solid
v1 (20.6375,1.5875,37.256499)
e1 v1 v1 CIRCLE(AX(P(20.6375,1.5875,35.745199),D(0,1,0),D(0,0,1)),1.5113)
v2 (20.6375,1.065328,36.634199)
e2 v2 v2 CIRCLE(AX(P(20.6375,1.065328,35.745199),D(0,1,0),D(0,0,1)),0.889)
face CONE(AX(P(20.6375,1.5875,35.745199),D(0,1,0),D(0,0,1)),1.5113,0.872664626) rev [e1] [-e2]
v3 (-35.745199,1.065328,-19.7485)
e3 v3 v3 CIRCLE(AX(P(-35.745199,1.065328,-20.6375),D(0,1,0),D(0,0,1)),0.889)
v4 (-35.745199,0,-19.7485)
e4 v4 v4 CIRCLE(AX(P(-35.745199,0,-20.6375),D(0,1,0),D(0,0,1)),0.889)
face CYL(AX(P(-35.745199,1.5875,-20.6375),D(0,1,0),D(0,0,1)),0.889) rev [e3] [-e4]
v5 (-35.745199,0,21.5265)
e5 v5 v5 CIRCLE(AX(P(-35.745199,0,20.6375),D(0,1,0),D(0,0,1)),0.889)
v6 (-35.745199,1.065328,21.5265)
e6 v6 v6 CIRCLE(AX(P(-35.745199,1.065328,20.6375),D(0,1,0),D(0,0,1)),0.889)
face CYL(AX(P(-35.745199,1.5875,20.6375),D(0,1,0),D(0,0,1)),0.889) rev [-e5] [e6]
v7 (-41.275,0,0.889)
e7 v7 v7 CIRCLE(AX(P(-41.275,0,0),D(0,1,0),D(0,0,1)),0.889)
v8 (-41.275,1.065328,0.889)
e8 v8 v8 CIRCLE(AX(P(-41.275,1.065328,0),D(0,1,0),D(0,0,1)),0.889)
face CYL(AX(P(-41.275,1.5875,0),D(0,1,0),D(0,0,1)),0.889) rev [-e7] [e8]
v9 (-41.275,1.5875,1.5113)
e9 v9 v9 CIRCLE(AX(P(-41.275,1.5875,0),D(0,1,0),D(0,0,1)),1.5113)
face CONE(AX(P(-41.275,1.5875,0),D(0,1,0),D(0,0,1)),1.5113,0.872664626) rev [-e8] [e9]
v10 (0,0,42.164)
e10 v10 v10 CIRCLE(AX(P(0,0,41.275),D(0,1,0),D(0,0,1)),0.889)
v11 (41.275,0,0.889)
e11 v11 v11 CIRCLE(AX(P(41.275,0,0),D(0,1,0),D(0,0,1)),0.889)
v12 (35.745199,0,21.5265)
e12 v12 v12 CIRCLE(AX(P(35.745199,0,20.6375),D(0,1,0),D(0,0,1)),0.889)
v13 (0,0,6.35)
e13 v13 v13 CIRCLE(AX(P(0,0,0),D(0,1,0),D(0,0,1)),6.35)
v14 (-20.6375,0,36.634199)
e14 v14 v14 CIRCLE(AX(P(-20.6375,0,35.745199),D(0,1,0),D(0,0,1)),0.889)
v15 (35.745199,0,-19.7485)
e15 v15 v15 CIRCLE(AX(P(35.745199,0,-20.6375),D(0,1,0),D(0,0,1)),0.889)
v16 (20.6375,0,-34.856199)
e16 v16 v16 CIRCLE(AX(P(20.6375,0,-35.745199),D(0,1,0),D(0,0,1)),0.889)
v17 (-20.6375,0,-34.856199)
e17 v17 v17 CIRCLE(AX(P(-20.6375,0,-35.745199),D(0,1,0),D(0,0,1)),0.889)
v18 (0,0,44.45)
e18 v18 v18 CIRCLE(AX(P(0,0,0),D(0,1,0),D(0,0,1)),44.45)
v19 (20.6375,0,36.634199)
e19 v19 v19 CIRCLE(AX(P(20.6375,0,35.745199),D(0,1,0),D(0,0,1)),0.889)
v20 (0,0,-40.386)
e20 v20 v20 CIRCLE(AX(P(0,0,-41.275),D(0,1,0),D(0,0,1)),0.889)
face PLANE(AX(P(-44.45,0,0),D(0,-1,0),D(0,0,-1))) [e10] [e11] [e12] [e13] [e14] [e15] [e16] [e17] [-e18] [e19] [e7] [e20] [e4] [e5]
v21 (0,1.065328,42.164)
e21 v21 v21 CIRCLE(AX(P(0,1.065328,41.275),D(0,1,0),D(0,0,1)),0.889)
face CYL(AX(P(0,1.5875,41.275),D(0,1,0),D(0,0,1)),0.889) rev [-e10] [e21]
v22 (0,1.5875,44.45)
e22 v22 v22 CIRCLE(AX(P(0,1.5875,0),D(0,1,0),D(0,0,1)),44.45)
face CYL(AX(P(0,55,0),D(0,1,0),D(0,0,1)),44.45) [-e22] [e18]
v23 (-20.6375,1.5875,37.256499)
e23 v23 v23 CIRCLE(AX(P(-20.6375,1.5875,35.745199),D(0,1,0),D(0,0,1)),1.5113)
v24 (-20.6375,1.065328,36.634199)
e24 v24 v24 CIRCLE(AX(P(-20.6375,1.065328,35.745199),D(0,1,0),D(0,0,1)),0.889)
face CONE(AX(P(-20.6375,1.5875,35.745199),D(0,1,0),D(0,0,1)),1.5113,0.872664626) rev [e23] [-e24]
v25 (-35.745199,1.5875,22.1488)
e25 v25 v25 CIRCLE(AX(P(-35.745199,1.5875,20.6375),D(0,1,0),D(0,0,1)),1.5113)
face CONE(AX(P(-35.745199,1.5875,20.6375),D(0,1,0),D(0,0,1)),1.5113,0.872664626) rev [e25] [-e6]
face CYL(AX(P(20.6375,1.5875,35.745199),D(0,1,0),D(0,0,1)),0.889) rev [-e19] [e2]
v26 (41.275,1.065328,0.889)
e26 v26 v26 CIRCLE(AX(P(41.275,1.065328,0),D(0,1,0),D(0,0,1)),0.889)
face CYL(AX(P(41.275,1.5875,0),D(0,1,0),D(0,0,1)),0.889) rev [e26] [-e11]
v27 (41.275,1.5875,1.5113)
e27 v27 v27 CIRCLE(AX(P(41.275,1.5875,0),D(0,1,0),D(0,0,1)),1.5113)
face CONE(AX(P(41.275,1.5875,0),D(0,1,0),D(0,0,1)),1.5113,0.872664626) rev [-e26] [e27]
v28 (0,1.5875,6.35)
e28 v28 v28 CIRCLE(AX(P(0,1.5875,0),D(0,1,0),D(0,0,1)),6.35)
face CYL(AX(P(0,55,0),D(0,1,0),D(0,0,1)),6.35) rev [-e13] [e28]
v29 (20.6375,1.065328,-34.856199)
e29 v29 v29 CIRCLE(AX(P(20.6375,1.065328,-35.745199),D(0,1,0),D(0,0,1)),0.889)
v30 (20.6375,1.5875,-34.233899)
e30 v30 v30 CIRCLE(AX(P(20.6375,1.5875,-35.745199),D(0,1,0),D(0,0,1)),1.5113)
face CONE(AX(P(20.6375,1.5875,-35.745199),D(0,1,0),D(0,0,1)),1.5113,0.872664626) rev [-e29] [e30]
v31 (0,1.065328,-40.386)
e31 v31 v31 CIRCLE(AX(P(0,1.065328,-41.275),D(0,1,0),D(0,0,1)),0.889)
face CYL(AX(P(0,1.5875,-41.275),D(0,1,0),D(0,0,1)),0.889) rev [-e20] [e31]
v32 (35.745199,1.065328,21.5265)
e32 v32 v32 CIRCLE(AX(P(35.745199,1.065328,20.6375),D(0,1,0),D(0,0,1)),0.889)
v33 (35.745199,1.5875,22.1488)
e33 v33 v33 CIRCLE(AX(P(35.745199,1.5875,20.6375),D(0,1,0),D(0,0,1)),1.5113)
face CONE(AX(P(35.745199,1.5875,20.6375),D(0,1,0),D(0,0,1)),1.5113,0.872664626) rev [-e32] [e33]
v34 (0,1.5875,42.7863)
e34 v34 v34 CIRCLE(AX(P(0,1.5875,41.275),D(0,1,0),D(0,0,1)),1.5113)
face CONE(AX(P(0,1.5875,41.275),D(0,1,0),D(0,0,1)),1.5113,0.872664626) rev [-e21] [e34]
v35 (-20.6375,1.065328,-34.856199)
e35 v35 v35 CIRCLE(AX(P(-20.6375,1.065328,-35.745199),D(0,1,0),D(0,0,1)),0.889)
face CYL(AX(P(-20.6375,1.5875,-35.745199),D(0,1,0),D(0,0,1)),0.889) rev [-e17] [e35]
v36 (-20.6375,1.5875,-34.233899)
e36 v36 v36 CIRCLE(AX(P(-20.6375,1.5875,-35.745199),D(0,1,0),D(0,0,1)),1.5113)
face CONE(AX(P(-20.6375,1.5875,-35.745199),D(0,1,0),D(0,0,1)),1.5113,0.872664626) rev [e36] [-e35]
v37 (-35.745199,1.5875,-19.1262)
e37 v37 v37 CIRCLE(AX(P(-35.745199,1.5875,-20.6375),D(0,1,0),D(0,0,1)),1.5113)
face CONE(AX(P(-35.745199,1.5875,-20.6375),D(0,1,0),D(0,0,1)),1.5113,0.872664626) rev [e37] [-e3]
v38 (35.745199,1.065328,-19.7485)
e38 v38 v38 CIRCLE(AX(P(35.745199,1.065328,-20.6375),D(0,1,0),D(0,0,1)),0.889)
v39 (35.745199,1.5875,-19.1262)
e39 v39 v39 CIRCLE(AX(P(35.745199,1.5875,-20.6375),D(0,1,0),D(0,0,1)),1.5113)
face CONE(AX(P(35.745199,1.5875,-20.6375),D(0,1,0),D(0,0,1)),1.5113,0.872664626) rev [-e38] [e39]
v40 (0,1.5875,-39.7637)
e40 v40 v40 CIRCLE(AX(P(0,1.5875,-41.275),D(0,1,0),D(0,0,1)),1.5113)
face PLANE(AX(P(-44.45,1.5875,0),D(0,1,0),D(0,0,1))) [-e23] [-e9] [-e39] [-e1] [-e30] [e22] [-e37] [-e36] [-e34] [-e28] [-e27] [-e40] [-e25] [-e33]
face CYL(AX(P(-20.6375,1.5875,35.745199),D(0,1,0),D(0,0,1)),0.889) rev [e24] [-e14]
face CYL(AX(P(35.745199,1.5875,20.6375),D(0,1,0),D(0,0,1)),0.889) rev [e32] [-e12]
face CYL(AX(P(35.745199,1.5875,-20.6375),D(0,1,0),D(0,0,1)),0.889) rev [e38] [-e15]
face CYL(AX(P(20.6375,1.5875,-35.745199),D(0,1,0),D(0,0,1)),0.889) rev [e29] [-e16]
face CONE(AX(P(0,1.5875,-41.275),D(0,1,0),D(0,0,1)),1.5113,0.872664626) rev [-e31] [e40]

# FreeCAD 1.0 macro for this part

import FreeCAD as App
import Part
import Sketcher
from FreeCAD import Vector
Q = App.Units.Quantity

doc = App.newDocument("Part")
body = doc.addObject("PartDesign::Body", "Body")

# Sketch on XY plane
sketch1 = body.newObject("Sketcher::SketchObject", "Sketch")
sketch1.AttachmentSupport = (doc.getObject("XY_Plane"), [""])
sketch1.MapMode = "FlatFace"
sketch1.addGeometry([
    Part.LineSegment(Vector(-44.5, 1.6, 0), Vector(-44.5, 0, 0)),
    Part.LineSegment(Vector(-44.5, 0, 0), Vector(-6.3, 0, 0)),
    Part.LineSegment(Vector(-6.3, 0, 0), Vector(-6.3, 1.6, 0)),
    Part.LineSegment(Vector(-6.3, 1.6, 0), Vector(-44.5, 1.6, 0)),
], False)
sketch1.addConstraint([
    Sketcher.Constraint("Coincident", 0, 2, 1, 1),
    Sketcher.Constraint("Coincident", 1, 2, 2, 1),
    Sketcher.Constraint("Coincident", 2, 2, 3, 1),
    Sketcher.Constraint("Coincident", 3, 2, 0, 1),
    Sketcher.Constraint("Vertical", 0),
    Sketcher.Constraint("Horizontal", 1),
    Sketcher.Constraint("Vertical", 2),
    Sketcher.Constraint("Horizontal", 3),
    Sketcher.Constraint("PointOnObject", 0, 2, -1),
    Sketcher.Constraint("DistanceX", 1, 1, 1, 2, Q("1.5 in")),
    Sketcher.Constraint("DistanceY", 0, 2, 0, 1, Q("0.0625 in")),
    Sketcher.Constraint("DistanceX", 0, 2, -1, 1, Q("1.75 in")),
])
revolution = body.newObject("PartDesign::Revolution", "Revolution")
revolution.Profile = sketch1
revolution.ReferenceAxis = (sketch1, ["V_Axis"])
revolution.Angle = 360

# Sketch on XZ plane
sketch2 = body.newObject("Sketcher::SketchObject", "Sketch001")
sketch2.AttachmentSupport = (doc.getObject("XZ_Plane"), [""])
sketch2.MapMode = "FlatFace"
sketch2.AttachmentOffset = App.Placement(Vector(0, 0, -0.0625 * 25.4), App.Rotation())
sketch2.addGeometry(Part.Circle(Vector(-41.3, 0, 0), Vector(0, 0, 1), 0.9), False)
sketch2.addConstraint([
    Sketcher.Constraint("PointOnObject", 0, 3, -1),
    Sketcher.Constraint("Diameter", 0, Q("0.07 in")),
    Sketcher.Constraint("DistanceX", 0, 3, -1, 1, Q("1.625 in")),
])
doc.recompute()
hole = body.newObject("PartDesign::Hole", "Hole")
hole.Profile = sketch2
hole.ThreadType = "None"
hole.Diameter = Q("0.07 in")
hole.DepthType = "ThroughAll"
hole.HoleCutType = "Countersink"
hole.HoleCutDiameter = Q("0.119 in")
hole.HoleCutCountersinkAngle = 100
hole.Reversed = True
doc.recompute()

polarpattern = body.newObject("PartDesign::PolarPattern", "PolarPattern")
polarpattern.Originals = [hole]
polarpattern.Axis = (doc.getObject("Y_Axis"), [""])
polarpattern.Angle = 360
polarpattern.Occurrences = 12
body.Tip = polarpattern

doc.recompute()
